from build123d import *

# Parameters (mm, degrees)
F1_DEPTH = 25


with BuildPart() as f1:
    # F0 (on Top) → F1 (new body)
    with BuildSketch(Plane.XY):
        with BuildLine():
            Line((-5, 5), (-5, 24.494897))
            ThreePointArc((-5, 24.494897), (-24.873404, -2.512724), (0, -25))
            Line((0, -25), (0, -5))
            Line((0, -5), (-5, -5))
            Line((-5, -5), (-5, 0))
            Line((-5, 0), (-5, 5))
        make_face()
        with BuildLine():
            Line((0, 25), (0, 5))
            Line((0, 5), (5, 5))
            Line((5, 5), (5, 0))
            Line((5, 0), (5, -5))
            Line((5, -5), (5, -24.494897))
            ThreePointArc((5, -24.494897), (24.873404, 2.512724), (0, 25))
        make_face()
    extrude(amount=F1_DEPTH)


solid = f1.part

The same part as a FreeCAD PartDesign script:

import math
import FreeCAD as App
import Part
import Sketcher

V = App.Vector

doc = App.newDocument("Part")
body = doc.addObject("PartDesign::Body", "Body")
body.AllowCompound = True

# Sketch on XY plane
sketch1 = body.newObject("Sketcher::SketchObject", "Sketch")
sketch1.AttachmentSupport = (doc.getObject("XY_Plane"), [""])
sketch1.MapMode = "FlatFace"
sketch1.addGeometry(Part.ArcOfCircle(Part.Circle(V(0, 0, 0), V(0, 0, 1), 25), math.radians(102), math.radians(270)), False)
sketch1.addGeometry(Part.LineSegment(V(0, -25, 0), V(0, -5, 0)), False)
sketch1.addGeometry(Part.LineSegment(V(0, -5, 0), V(-5, -5, 0)), False)
sketch1.addGeometry(Part.LineSegment(V(-5, -5, 0), V(-5, 24, 0)), False)
sketch1.addGeometry(Part.LineSegment(V(0, 25, 0), V(0, 5, 0)), False)
sketch1.addGeometry(Part.LineSegment(V(0, 5, 0), V(5, 5, 0)), False)
sketch1.addGeometry(Part.LineSegment(V(5, 5, 0), V(5, -24, 0)), False)
sketch1.addGeometry(Part.ArcOfCircle(Part.Circle(V(0, 0, 0), V(0, 0, 1), 25), math.radians(-78), math.radians(90)), False)
sketch1.addConstraint(Sketcher.Constraint("Coincident", 0, 2, 1, 1))
sketch1.addConstraint(Sketcher.Constraint("Coincident", 1, 2, 2, 1))
sketch1.addConstraint(Sketcher.Constraint("Coincident", 2, 2, 3, 1))
sketch1.addConstraint(Sketcher.Constraint("Coincident", 3, 2, 0, 1))
sketch1.addConstraint(Sketcher.Constraint("Coincident", 4, 2, 5, 1))
sketch1.addConstraint(Sketcher.Constraint("Coincident", 5, 2, 6, 1))
sketch1.addConstraint(Sketcher.Constraint("Coincident", 6, 2, 7, 1))
sketch1.addConstraint(Sketcher.Constraint("Coincident", 7, 2, 4, 1))
sketch1.addConstraint(Sketcher.Constraint("Vertical", 1))
sketch1.addConstraint(Sketcher.Constraint("Horizontal", 2))
sketch1.addConstraint(Sketcher.Constraint("Vertical", 3))
sketch1.addConstraint(Sketcher.Constraint("Vertical", 4))
sketch1.addConstraint(Sketcher.Constraint("Horizontal", 5))
sketch1.addConstraint(Sketcher.Constraint("Vertical", 6))
sketch1.addConstraint(Sketcher.Constraint("Coincident", 0, 3, -1, 1))
sketch1.addConstraint(Sketcher.Constraint("Coincident", 7, 3, -1, 1))
sketch1.addConstraint(Sketcher.Constraint("Equal", 0, 7))
sketch1.addConstraint(Sketcher.Constraint("Symmetric", 1, 2, 4, 2, -1, 1))
sketch1.addConstraint(Sketcher.Constraint("PointOnObject", 0, 2, -2))
sketch1.addConstraint(Sketcher.Constraint("Equal", 2, 5))
sketch1.addConstraint(Sketcher.Constraint("Radius", 0, 25.0))
sketch1.addConstraint(Sketcher.Constraint("DistanceX", 2, 2, 2, 1, 5.0))
sketch1.addConstraint(Sketcher.Constraint("DistanceY", 1, 1, 1, 2, 20.0))
pad1 = body.newObject("PartDesign::Pad", "Pad")
pad1.Profile = sketch1
pad1.Length = 25

doc.recompute()
